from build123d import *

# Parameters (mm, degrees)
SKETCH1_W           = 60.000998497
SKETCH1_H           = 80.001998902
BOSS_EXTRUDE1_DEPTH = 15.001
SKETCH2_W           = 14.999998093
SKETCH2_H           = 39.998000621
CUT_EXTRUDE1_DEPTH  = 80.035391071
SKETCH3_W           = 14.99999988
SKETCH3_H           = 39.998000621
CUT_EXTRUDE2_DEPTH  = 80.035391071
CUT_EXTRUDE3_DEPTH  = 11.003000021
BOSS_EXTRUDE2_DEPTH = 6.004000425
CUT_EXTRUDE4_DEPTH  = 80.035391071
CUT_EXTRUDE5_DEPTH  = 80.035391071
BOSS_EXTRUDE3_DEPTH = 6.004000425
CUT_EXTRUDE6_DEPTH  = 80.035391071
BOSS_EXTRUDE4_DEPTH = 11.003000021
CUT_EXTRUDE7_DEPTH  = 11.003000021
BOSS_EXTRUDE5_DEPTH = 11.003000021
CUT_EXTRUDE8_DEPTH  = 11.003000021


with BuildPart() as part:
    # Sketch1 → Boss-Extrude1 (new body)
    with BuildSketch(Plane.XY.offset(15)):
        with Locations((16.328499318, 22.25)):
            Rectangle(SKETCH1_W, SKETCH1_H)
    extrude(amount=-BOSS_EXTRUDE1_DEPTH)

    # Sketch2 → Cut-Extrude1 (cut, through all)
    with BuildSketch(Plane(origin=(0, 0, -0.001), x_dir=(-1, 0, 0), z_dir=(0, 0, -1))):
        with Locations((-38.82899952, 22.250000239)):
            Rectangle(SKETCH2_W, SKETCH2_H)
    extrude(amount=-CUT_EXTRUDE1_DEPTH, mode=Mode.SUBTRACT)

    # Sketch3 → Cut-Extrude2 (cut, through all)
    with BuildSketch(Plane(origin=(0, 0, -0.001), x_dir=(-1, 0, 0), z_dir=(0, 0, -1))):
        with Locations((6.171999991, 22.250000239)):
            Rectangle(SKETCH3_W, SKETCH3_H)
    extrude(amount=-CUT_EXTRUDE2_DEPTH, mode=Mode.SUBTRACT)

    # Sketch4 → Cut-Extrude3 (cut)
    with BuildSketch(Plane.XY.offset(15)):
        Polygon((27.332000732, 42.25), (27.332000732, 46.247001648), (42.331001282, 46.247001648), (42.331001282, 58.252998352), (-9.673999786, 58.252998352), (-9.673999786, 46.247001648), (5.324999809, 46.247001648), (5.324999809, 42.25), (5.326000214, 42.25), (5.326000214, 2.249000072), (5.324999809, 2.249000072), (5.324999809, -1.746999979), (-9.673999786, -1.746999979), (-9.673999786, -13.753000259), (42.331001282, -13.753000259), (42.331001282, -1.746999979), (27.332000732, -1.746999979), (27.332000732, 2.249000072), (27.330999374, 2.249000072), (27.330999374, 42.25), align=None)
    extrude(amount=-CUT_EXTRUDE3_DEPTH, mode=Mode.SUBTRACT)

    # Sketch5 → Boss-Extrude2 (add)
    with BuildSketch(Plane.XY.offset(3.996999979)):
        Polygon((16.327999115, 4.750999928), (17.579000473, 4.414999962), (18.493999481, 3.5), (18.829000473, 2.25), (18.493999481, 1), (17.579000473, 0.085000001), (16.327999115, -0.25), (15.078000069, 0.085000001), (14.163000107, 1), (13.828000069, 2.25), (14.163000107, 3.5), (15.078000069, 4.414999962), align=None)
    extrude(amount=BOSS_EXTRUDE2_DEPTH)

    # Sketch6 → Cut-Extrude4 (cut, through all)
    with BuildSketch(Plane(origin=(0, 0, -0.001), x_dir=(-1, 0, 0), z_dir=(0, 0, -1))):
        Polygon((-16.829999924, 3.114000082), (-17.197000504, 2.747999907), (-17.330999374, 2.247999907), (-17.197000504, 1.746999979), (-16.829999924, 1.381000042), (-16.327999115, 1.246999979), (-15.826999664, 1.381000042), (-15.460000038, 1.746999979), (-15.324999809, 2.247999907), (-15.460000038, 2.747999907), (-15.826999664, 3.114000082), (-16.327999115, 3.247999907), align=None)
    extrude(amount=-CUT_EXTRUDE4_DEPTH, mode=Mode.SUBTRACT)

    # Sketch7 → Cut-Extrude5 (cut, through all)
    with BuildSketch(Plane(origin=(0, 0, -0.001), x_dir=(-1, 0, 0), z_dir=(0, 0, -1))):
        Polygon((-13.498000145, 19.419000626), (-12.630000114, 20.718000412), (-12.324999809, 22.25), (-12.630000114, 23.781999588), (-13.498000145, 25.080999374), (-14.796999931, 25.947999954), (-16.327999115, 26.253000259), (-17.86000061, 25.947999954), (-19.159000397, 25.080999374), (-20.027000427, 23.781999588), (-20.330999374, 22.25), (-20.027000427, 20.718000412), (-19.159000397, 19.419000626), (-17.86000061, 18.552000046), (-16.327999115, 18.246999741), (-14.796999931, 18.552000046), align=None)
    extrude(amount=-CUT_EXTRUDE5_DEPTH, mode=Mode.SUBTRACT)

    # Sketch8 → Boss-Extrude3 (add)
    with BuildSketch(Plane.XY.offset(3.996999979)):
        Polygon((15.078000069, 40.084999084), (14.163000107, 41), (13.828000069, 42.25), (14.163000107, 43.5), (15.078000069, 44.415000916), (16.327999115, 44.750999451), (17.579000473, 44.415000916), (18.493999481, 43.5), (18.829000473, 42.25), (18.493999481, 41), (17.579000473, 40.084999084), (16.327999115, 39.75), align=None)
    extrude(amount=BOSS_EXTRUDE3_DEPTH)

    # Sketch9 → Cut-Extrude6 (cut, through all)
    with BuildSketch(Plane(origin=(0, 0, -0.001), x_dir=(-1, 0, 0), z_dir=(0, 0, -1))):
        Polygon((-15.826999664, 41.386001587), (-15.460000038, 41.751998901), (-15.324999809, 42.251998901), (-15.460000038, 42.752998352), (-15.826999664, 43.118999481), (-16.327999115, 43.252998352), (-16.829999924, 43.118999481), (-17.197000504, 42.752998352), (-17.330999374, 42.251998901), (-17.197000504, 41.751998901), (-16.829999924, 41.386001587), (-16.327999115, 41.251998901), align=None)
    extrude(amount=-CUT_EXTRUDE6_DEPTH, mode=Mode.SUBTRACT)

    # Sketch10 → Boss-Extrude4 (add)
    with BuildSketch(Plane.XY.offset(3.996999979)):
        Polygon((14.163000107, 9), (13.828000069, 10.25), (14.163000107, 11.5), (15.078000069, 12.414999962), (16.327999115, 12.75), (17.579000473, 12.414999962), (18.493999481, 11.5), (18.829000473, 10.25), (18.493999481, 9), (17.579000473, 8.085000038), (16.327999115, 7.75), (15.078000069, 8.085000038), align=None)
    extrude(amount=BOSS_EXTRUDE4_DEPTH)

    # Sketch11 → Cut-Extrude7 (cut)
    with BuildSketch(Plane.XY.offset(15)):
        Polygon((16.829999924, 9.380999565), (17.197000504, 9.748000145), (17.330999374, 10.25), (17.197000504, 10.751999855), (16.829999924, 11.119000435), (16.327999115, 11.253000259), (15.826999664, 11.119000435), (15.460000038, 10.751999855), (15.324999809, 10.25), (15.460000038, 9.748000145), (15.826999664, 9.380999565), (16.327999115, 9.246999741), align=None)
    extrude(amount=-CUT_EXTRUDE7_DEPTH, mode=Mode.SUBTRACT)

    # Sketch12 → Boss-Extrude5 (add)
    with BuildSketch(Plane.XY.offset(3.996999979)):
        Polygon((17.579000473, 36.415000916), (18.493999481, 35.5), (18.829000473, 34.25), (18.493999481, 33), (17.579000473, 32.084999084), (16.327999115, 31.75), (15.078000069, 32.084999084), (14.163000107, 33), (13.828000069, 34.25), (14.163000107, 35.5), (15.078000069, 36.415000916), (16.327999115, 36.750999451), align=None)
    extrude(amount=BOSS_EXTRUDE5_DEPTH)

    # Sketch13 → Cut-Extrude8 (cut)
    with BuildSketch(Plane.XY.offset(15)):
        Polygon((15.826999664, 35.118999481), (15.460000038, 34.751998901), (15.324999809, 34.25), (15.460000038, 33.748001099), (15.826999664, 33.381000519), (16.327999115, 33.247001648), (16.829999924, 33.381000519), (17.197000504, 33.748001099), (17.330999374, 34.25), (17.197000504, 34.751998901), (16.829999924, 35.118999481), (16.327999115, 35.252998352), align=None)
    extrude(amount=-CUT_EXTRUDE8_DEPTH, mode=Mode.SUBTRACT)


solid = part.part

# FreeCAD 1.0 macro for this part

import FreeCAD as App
import Part
import Sketcher
from FreeCAD import Vector
Q = App.Units.Quantity


def add_polygon(sketch, points):
    """Adds a closed chain of lines whose ends are joined by coincident constraints."""
    first, n = sketch.GeometryCount, len(points)
    for a, b in zip(points, points[1:] + points[:1]):
        sketch.addGeometry(Part.LineSegment(App.Vector(*a, 0), App.Vector(*b, 0)), False)
    for i in range(n):
        sketch.addConstraint(Sketcher.Constraint("Coincident", first + i, 2, first + (i + 1) % n, 1))

doc = App.newDocument("Part")
body = doc.addObject("PartDesign::Body", "Body")

# Sketch on XY plane
sketch1 = body.newObject("Sketcher::SketchObject", "Sketch")
sketch1.AttachmentSupport = (doc.getObject("XY_Plane"), [""])
sketch1.MapMode = "FlatFace"
sketch1.AttachmentOffset = App.Placement(Vector(0, 0, 15), App.Rotation())
add_polygon(sketch1, [(-13.672, 62.250999), (-13.672, -17.750999), (46.328999, -17.750999), (46.328999, 62.250999)])  # lines 0-3
sketch1.addConstraint(Sketcher.Constraint("Vertical", 0))
sketch1.addConstraint(Sketcher.Constraint("Horizontal", 1))
sketch1.addConstraint(Sketcher.Constraint("Vertical", 2))
sketch1.addConstraint(Sketcher.Constraint("Horizontal", 3))
sketch1.addConstraint(Sketcher.Constraint("DistanceX", 1, 1, 1, 2, Q("60.000998 mm")))
sketch1.addConstraint(Sketcher.Constraint("DistanceY", 0, 2, 0, 1, Q("80.001999 mm")))
sketch1.addConstraint(Sketcher.Constraint("DistanceX", 0, 2, -1, 1, Q("13.672 mm")))
sketch1.addConstraint(Sketcher.Constraint("DistanceY", 0, 2, -1, 1, Q("17.750999 mm")))
pad1 = body.newObject("PartDesign::Pad", "Pad")
pad1.Profile = sketch1
pad1.Length = 15.001
pad1.Reversed = True

# Sketch on XY plane
sketch2 = body.newObject("Sketcher::SketchObject", "Sketch001")
sketch2.AttachmentSupport = (doc.getObject("XY_Plane"), [""])
sketch2.MapMode = "FlatFace"
sketch2.AttachmentOffset = App.Placement(Vector(0, 0, -0.001), App.Rotation())
add_polygon(sketch2, [(46.328999, 42.249001), (46.328999, 2.251), (31.329, 2.251), (31.329, 42.249001)])  # lines 0-3
sketch2.addConstraint(Sketcher.Constraint("Vertical", 0))
sketch2.addConstraint(Sketcher.Constraint("Horizontal", 1))
sketch2.addConstraint(Sketcher.Constraint("Vertical", 2))
sketch2.addConstraint(Sketcher.Constraint("Horizontal", 3))
sketch2.addConstraint(Sketcher.Constraint("DistanceX", 1, 2, 1, 1, Q("14.999998 mm")))
sketch2.addConstraint(Sketcher.Constraint("DistanceY", 0, 2, 0, 1, Q("39.998001 mm")))
sketch2.addConstraint(Sketcher.Constraint("DistanceX", -1, 1, 0, 2, Q("46.328999 mm")))
sketch2.addConstraint(Sketcher.Constraint("DistanceY", -1, 1, 0, 2, Q("2.251 mm")))
pocket1 = body.newObject("PartDesign::Pocket", "Pocket")
pocket1.Profile = sketch2
pocket1.Type = "ThroughAll"
pocket1.Reversed = True

# Sketch on XY plane
sketch3 = body.newObject("Sketcher::SketchObject", "Sketch002")
sketch3.AttachmentSupport = (doc.getObject("XY_Plane"), [""])
sketch3.MapMode = "FlatFace"
sketch3.AttachmentOffset = App.Placement(Vector(0, 0, -0.001), App.Rotation())
add_polygon(sketch3, [(1.328, 42.249001), (1.328, 2.251), (-13.672, 2.251), (-13.672, 42.249001)])  # lines 0-3
sketch3.addConstraint(Sketcher.Constraint("Vertical", 0))
sketch3.addConstraint(Sketcher.Constraint("Horizontal", 1))
sketch3.addConstraint(Sketcher.Constraint("Vertical", 2))
sketch3.addConstraint(Sketcher.Constraint("Horizontal", 3))
sketch3.addConstraint(Sketcher.Constraint("DistanceX", 1, 2, 1, 1, Q("15 mm")))
sketch3.addConstraint(Sketcher.Constraint("DistanceY", 0, 2, 0, 1, Q("39.998001 mm")))
sketch3.addConstraint(Sketcher.Constraint("DistanceX", -1, 1, 0, 2, Q("1.328 mm")))
sketch3.addConstraint(Sketcher.Constraint("DistanceY", -1, 1, 0, 2, Q("2.251 mm")))
pocket2 = body.newObject("PartDesign::Pocket", "Pocket001")
pocket2.Profile = sketch3
pocket2.Type = "ThroughAll"
pocket2.Reversed = True

# Sketch on XY plane
sketch4 = body.newObject("Sketcher::SketchObject", "Sketch003")
sketch4.AttachmentSupport = (doc.getObject("XY_Plane"), [""])
sketch4.MapMode = "FlatFace"
sketch4.AttachmentOffset = App.Placement(Vector(0, 0, 15), App.Rotation())
add_polygon(sketch4, [(27.332001, 42.25), (27.332001, 46.247002), (42.331001, 46.247002), (42.331001, 58.252998), (-9.674, 58.252998), (-9.674, 46.247002), (5.325, 46.247002), (5.325, 42.25), (5.326, 42.25), (5.326, 2.249), (5.325, 2.249), (5.325, -1.747), (-9.674, -1.747), (-9.674, -13.753), (42.331001, -13.753), (42.331001, -1.747), (27.332001, -1.747), (27.332001, 2.249), (27.330999, 2.249), (27.330999, 42.25)])  # lines 0-19
sketch4.addConstraint(Sketcher.Constraint("Vertical", 0))
sketch4.addConstraint(Sketcher.Constraint("Horizontal", 1))
sketch4.addConstraint(Sketcher.Constraint("Vertical", 2))
sketch4.addConstraint(Sketcher.Constraint("Horizontal", 3))
sketch4.addConstraint(Sketcher.Constraint("Vertical", 4))
sketch4.addConstraint(Sketcher.Constraint("Horizontal", 5))
sketch4.addConstraint(Sketcher.Constraint("Vertical", 6))
sketch4.addConstraint(Sketcher.Constraint("Horizontal", 7))
sketch4.addConstraint(Sketcher.Constraint("Vertical", 8))
sketch4.addConstraint(Sketcher.Constraint("Horizontal", 9))
sketch4.addConstraint(Sketcher.Constraint("Vertical", 10))
sketch4.addConstraint(Sketcher.Constraint("Horizontal", 11))
sketch4.addConstraint(Sketcher.Constraint("Vertical", 12))
sketch4.addConstraint(Sketcher.Constraint("Horizontal", 13))
sketch4.addConstraint(Sketcher.Constraint("Vertical", 14))
sketch4.addConstraint(Sketcher.Constraint("Horizontal", 15))
sketch4.addConstraint(Sketcher.Constraint("Vertical", 16))
sketch4.addConstraint(Sketcher.Constraint("Horizontal", 17))
sketch4.addConstraint(Sketcher.Constraint("Vertical", 18))
sketch4.addConstraint(Sketcher.Constraint("Horizontal", 19))
sketch4.addConstraint(Sketcher.Constraint("Horizontal", 1, 2, 4, 2))
sketch4.addConstraint(Sketcher.Constraint("Horizontal", 11, 2, 14, 2))
sketch4.addConstraint(Sketcher.Constraint("Horizontal", 9, 2, 16, 2))
sketch4.addConstraint(Sketcher.Constraint("Horizontal", 7, 2, 18, 2))
sketch4.addConstraint(Sketcher.Constraint("Vertical", 6, 2, 9, 2))
sketch4.addConstraint(Sketcher.Constraint("Vertical", 4, 2, 11, 2))
sketch4.addConstraint(Sketcher.Constraint("Vertical", 2, 2, 13, 2))
sketch4.addConstraint(Sketcher.Constraint("Vertical", 0, 2, 15, 2))
sketch4.addConstraint(Sketcher.Constraint("Equal", 1, 5))
sketch4.addConstraint(Sketcher.Constraint("Equal", 9, 17))
sketch4.addConstraint(Sketcher.Constraint("DistanceX", 4, 2, 7, 2, Q("15 mm")))
sketch4.addConstraint(Sketcher.Constraint("DistanceX", 1, 1, 1, 2, Q("14.999001 mm")))
sketch4.addConstraint(Sketcher.Constraint("DistanceX", 3, 2, 3, 1, Q("52.005001 mm")))
sketch4.addConstraint(Sketcher.Constraint("DistanceY", 0, 1, 0, 2, Q("3.997002 mm")))
sketch4.addConstraint(Sketcher.Constraint("DistanceY", 8, 2, 8, 1, Q("40.001 mm")))
sketch4.addConstraint(Sketcher.Constraint("DistanceY", 10, 2, 10, 1, Q("3.996 mm")))
sketch4.addConstraint(Sketcher.Constraint("DistanceY", 12, 2, 12, 1, Q("12.006 mm")))
sketch4.addConstraint(Sketcher.Constraint("DistanceY", -1, 1, 6, 2, Q("42.25 mm")))
sketch4.addConstraint(Sketcher.Constraint("DistanceX", -1, 1, 0, 2, Q("27.332001 mm")))
sketch4.addConstraint(Sketcher.Constraint("DistanceY", -1, 1, 2, 2, Q("58.252998 mm")))
pocket3 = body.newObject("PartDesign::Pocket", "Pocket002")
pocket3.Profile = sketch4
pocket3.Length = 11.003

# Sketch on XY plane
sketch5 = body.newObject("Sketcher::SketchObject", "Sketch004")
sketch5.AttachmentSupport = (doc.getObject("XY_Plane"), [""])
sketch5.MapMode = "FlatFace"
sketch5.AttachmentOffset = App.Placement(Vector(0, 0, 3.997), App.Rotation())
add_polygon(sketch5, [(17.579, 4.415), (16.327999, 4.751), (15.078, 4.415), (14.163, 3.5), (13.828, 2.25), (14.163, 1), (15.078, 0.085), (16.327999, -0.25), (17.579, 0.085), (18.493999, 1), (18.829, 2.25), (18.493999, 3.5)])  # lines 0-11
sketch5.addConstraint(Sketcher.Constraint("Perpendicular", 2, 5))
sketch5.addConstraint(Sketcher.Constraint("Perpendicular", 3, 6))
sketch5.addConstraint(Sketcher.Constraint("Perpendicular", 5, 8))
sketch5.addConstraint(Sketcher.Constraint("Perpendicular", 6, 9))
sketch5.addConstraint(Sketcher.Constraint("Parallel", 4, 10))
sketch5.addConstraint(Sketcher.Constraint("Perpendicular", 8, 11))
sketch5.addConstraint(Sketcher.Constraint("Horizontal", 5, 2, 7, 2))
sketch5.addConstraint(Sketcher.Constraint("Horizontal", 4, 2, 8, 2))
sketch5.addConstraint(Sketcher.Constraint("Horizontal", 3, 2, 9, 2))
sketch5.addConstraint(Sketcher.Constraint("Horizontal", 2, 2, 10, 2))
sketch5.addConstraint(Sketcher.Constraint("Horizontal", 1, 2, 11, 2))
sketch5.addConstraint(Sketcher.Constraint("Vertical", 2, 2, 4, 2))
sketch5.addConstraint(Sketcher.Constraint("Vertical", 1, 2, 5, 2))
sketch5.addConstraint(Sketcher.Constraint("Vertical", 0, 2, 6, 2))
sketch5.addConstraint(Sketcher.Constraint("Vertical", 8, 2, 10, 2))
sketch5.addConstraint(Sketcher.Constraint("Vertical", 7, 2, 11, 2))
sketch5.addConstraint(Sketcher.Constraint("Equal", 4, 6))
sketch5.addConstraint(Sketcher.Constraint("DistanceY", -1, 1, 4, 2, Q("1 mm")))
sketch5.addConstraint(Sketcher.Constraint("DistanceY", -1, 1, 2, 2, Q("3.5 mm")))
sketch5.addConstraint(Sketcher.Constraint("DistanceX", 3, 2, 0, 2, Q("2.499999 mm")))
sketch5.addConstraint(Sketcher.Constraint("DistanceY", 5, 2, 1, 2, Q("4.33 mm")))
sketch5.addConstraint(Sketcher.Constraint("DistanceX", -1, 1, 0, 2, Q("16.327999 mm")))
sketch5.addConstraint(Sketcher.Constraint("DistanceY", -1, 1, 0, 2, Q("4.751 mm")))
sketch5.addConstraint(Sketcher.Constraint("DistanceX", -1, 1, 7, 2, Q("17.579 mm")))
pad2 = body.newObject("PartDesign::Pad", "Pad001")
pad2.Profile = sketch5
pad2.Length = 6.004

# Sketch on XY plane
sketch6 = body.newObject("Sketcher::SketchObject", "Sketch005")
sketch6.AttachmentSupport = (doc.getObject("XY_Plane"), [""])
sketch6.MapMode = "FlatFace"
sketch6.AttachmentOffset = App.Placement(Vector(0, 0, -0.001), App.Rotation())
add_polygon(sketch6, [(16.83, 3.114), (17.197001, 2.748), (17.330999, 2.248), (17.197001, 1.747), (16.83, 1.381), (16.327999, 1.247), (15.827, 1.381), (15.46, 1.747), (15.325, 2.248), (15.46, 2.748), (15.827, 3.114), (16.327999, 3.248)])  # lines 0-11
sketch6.addConstraint(Sketcher.Constraint("Parallel", 0, 6))
sketch6.addConstraint(Sketcher.Constraint("Parallel", 3, 9))
sketch6.addConstraint(Sketcher.Constraint("Horizontal", 3, 2, 5, 2))
sketch6.addConstraint(Sketcher.Constraint("Horizontal", 2, 2, 6, 2))
sketch6.addConstraint(Sketcher.Constraint("Horizontal", 1, 2, 7, 2))
sketch6.addConstraint(Sketcher.Constraint("Horizontal", 0, 2, 8, 2))
sketch6.addConstraint(Sketcher.Constraint("Horizontal", 9, 2, 11, 2))
sketch6.addConstraint(Sketcher.Constraint("Vertical", 0, 2, 2, 2))
sketch6.addConstraint(Sketcher.Constraint("Vertical", 6, 2, 8, 2))
sketch6.addConstraint(Sketcher.Constraint("Vertical", 5, 2, 9, 2))
sketch6.addConstraint(Sketcher.Constraint("Vertical", 4, 2, 10, 2))
sketch6.addConstraint(Sketcher.Constraint("Vertical", 3, 2, 11, 2))
sketch6.addConstraint(Sketcher.Constraint("Equal", 2, 5))
sketch6.addConstraint(Sketcher.Constraint("Equal", 5, 10))
sketch6.addConstraint(Sketcher.Constraint("DistanceY", 7, 2, 10, 2, Q("1 mm")))
sketch6.addConstraint(Sketcher.Constraint("DistanceY", 1, 2, 0, 2, Q("0.5 mm")))
sketch6.addConstraint(Sketcher.Constraint("DistanceX", -1, 1, 3, 2, Q("16.83 mm")))
sketch6.addConstraint(Sketcher.Constraint("DistanceX", -1, 1, 6, 2, Q("15.46 mm")))
sketch6.addConstraint(Sketcher.Constraint("DistanceX", -1, 1, 0, 2, Q("17.197001 mm")))
sketch6.addConstraint(Sketcher.Constraint("DistanceY", -1, 1, 0, 2, Q("2.748 mm")))
sketch6.addConstraint(Sketcher.Constraint("DistanceX", -1, 1, 1, 2, Q("17.330999 mm")))
sketch6.addConstraint(Sketcher.Constraint("DistanceY", -1, 1, 2, 2, Q("1.747 mm")))
sketch6.addConstraint(Sketcher.Constraint("DistanceY", -1, 1, 3, 2, Q("1.381 mm")))
sketch6.addConstraint(Sketcher.Constraint("DistanceX", -1, 1, 7, 2, Q("15.325 mm")))
pocket4 = body.newObject("PartDesign::Pocket", "Pocket003")
pocket4.Profile = sketch6
pocket4.Type = "ThroughAll"
pocket4.Reversed = True

# Sketch on XY plane
sketch7 = body.newObject("Sketcher::SketchObject", "Sketch006")
sketch7.AttachmentSupport = (doc.getObject("XY_Plane"), [""])
sketch7.MapMode = "FlatFace"
sketch7.AttachmentOffset = App.Placement(Vector(0, 0, -0.001), App.Rotation())
add_polygon(sketch7, [(13.498, 19.419001), (12.63, 20.718), (12.325, 22.25), (12.63, 23.782), (13.498, 25.080999), (14.797, 25.948), (16.327999, 26.253), (17.860001, 25.948), (19.159, 25.080999), (20.027, 23.782), (20.330999, 22.25), (20.027, 20.718), (19.159, 19.419001), (17.860001, 18.552), (16.327999, 18.247), (14.797, 18.552)])  # lines 0-15
sketch7.addConstraint(Sketcher.Constraint("Perpendicular", 2, 6))
sketch7.addConstraint(Sketcher.Constraint("Parallel", 0, 8))
sketch7.addConstraint(Sketcher.Constraint("Parallel", 3, 11))
sketch7.addConstraint(Sketcher.Constraint("Parallel", 4, 12))
sketch7.addConstraint(Sketcher.Constraint("Perpendicular", 1, 13))
sketch7.addConstraint(Sketcher.Constraint("Parallel", 7, 15))
sketch7.addConstraint(Sketcher.Constraint("Horizontal", 4, 2, 6, 2))
sketch7.addConstraint(Sketcher.Constraint("Horizontal", 3, 2, 7, 2))
sketch7.addConstraint(Sketcher.Constraint("Horizontal", 2, 2, 8, 2))
sketch7.addConstraint(Sketcher.Constraint("Horizontal", 1, 2, 9, 2))
sketch7.addConstraint(Sketcher.Constraint("Horizontal", 0, 2, 10, 2))
sketch7.addConstraint(Sketcher.Constraint("Horizontal", 12, 2, 14, 2))
sketch7.addConstraint(Sketcher.Constraint("Horizontal", 11, 2, 15, 2))
sketch7.addConstraint(Sketcher.Constraint("Vertical", 0, 2, 2, 2))
sketch7.addConstraint(Sketcher.Constraint("Vertical", 8, 2, 10, 2))
sketch7.addConstraint(Sketcher.Constraint("Vertical", 7, 2, 11, 2))
sketch7.addConstraint(Sketcher.Constraint("Vertical", 6, 2, 12, 2))
sketch7.addConstraint(Sketcher.Constraint("Vertical", 5, 2, 13, 2))
sketch7.addConstraint(Sketcher.Constraint("Vertical", 4, 2, 14, 2))
sketch7.addConstraint(Sketcher.Constraint("Vertical", 3, 2, 15, 2))
sketch7.addConstraint(Sketcher.Constraint("Equal", 1, 2))
sketch7.addConstraint(Sketcher.Constraint("Equal", 2, 6))
sketch7.addConstraint(Sketcher.Constraint("DistanceX", -1, 1, 0, 2, Q("12.63 mm")))
sketch7.addConstraint(Sketcher.Constraint("DistanceY", -1, 1, 1, 2, Q("22.25 mm")))
sketch7.addConstraint(Sketcher.Constraint("DistanceX", -1, 1, 6, 2, Q("17.860001 mm")))
sketch7.addConstraint(Sketcher.Constraint("DistanceY", 0, 2, 4, 2, Q("5.23 mm")))
sketch7.addConstraint(Sketcher.Constraint("DistanceX", 3, 2, 5, 2, Q("2.829999 mm")))
sketch7.addConstraint(Sketcher.Constraint("DistanceY", -1, 1, 0, 2, Q("20.718 mm")))
sketch7.addConstraint(Sketcher.Constraint("DistanceX", -1, 1, 1, 2, Q("12.325 mm")))
sketch7.addConstraint(Sketcher.Constraint("DistanceY", -1, 1, 3, 2, Q("25.080999 mm")))
sketch7.addConstraint(Sketcher.Constraint("DistanceX", -1, 1, 4, 2, Q("14.797 mm")))
sketch7.addConstraint(Sketcher.Constraint("DistanceX", -1, 1, 9, 2, Q("20.330999 mm")))
pocket5 = body.newObject("PartDesign::Pocket", "Pocket004")
pocket5.Profile = sketch7
pocket5.Type = "ThroughAll"
pocket5.Reversed = True

# Sketch on XY plane
sketch8 = body.newObject("Sketcher::SketchObject", "Sketch007")
sketch8.AttachmentSupport = (doc.getObject("XY_Plane"), [""])
sketch8.MapMode = "FlatFace"
sketch8.AttachmentOffset = App.Placement(Vector(0, 0, 3.997), App.Rotation())
add_polygon(sketch8, [(14.163, 41), (15.078, 40.084999), (16.327999, 39.75), (17.579, 40.084999), (18.493999, 41), (18.829, 42.25), (18.493999, 43.5), (17.579, 44.415001), (16.327999, 44.750999), (15.078, 44.415001), (14.163, 43.5), (13.828, 42.25)])  # lines 0-11
sketch8.addConstraint(Sketcher.Constraint("Perpendicular", 0, 3))
sketch8.addConstraint(Sketcher.Constraint("Perpendicular", 1, 4))
sketch8.addConstraint(Sketcher.Constraint("Parallel", 0, 6))
sketch8.addConstraint(Sketcher.Constraint("Perpendicular", 6, 9))
sketch8.addConstraint(Sketcher.Constraint("Parallel", 4, 10))
sketch8.addConstraint(Sketcher.Constraint("Parallel", 5, 11))
sketch8.addConstraint(Sketcher.Constraint("Horizontal", 0, 2, 2, 2))
sketch8.addConstraint(Sketcher.Constraint("Horizontal", 6, 2, 8, 2))
sketch8.addConstraint(Sketcher.Constraint("Horizontal", 5, 2, 9, 2))
sketch8.addConstraint(Sketcher.Constraint("Horizontal", 4, 2, 10, 2))
sketch8.addConstraint(Sketcher.Constraint("Horizontal", 3, 2, 11, 2))
sketch8.addConstraint(Sketcher.Constraint("Vertical", 3, 2, 5, 2))
sketch8.addConstraint(Sketcher.Constraint("Vertical", 2, 2, 6, 2))
sketch8.addConstraint(Sketcher.Constraint("Vertical", 1, 2, 7, 2))
sketch8.addConstraint(Sketcher.Constraint("Vertical", 0, 2, 8, 2))
sketch8.addConstraint(Sketcher.Constraint("Vertical", 9, 2, 11, 2))
sketch8.addConstraint(Sketcher.Constraint("Equal", 1, 4))
sketch8.addConstraint(Sketcher.Constraint("DistanceY", -1, 1, 3, 2, Q("41 mm")))
sketch8.addConstraint(Sketcher.Constraint("DistanceY", -1, 1, 5, 2, Q("43.5 mm")))
sketch8.addConstraint(Sketcher.Constraint("DistanceY", 1, 2, 4, 2, Q("2.5 mm")))
sketch8.addConstraint(Sketcher.Constraint("DistanceY", 2, 2, 6, 2, Q("4.330002 mm")))
sketch8.addConstraint(Sketcher.Constraint("DistanceX", -1, 1, 0, 2, Q("15.078 mm")))
sketch8.addConstraint(Sketcher.Constraint("DistanceX", -1, 1, 2, 2, Q("17.579 mm")))
sketch8.addConstraint(Sketcher.Constraint("DistanceY", -1, 1, 7, 2, Q("44.750999 mm")))
pad3 = body.newObject("PartDesign::Pad", "Pad002")
pad3.Profile = sketch8
pad3.Length = 6.004

# Sketch on XY plane
sketch9 = body.newObject("Sketcher::SketchObject", "Sketch008")
sketch9.AttachmentSupport = (doc.getObject("XY_Plane"), [""])
sketch9.MapMode = "FlatFace"
sketch9.AttachmentOffset = App.Placement(Vector(0, 0, -0.001), App.Rotation())
add_polygon(sketch9, [(15.827, 41.386002), (15.46, 41.751999), (15.325, 42.251999), (15.46, 42.752998), (15.827, 43.118999), (16.327999, 43.252998), (16.83, 43.118999), (17.197001, 42.752998), (17.330999, 42.251999), (17.197001, 41.751999), (16.83, 41.386002), (16.327999, 41.251999)])  # lines 0-11
sketch9.addConstraint(Sketcher.Constraint("Perpendicular", 4, 7))
sketch9.addConstraint(Sketcher.Constraint("Horizontal", 3, 2, 5, 2))
sketch9.addConstraint(Sketcher.Constraint("Horizontal", 2, 2, 6, 2))
sketch9.addConstraint(Sketcher.Constraint("Horizontal", 1, 2, 7, 2))
sketch9.addConstraint(Sketcher.Constraint("Horizontal", 0, 2, 8, 2))
sketch9.addConstraint(Sketcher.Constraint("Horizontal", 9, 2, 11, 2))
sketch9.addConstraint(Sketcher.Constraint("Vertical", 0, 2, 2, 2))
sketch9.addConstraint(Sketcher.Constraint("Vertical", 6, 2, 8, 2))
sketch9.addConstraint(Sketcher.Constraint("Vertical", 5, 2, 9, 2))
sketch9.addConstraint(Sketcher.Constraint("Vertical", 4, 2, 10, 2))
sketch9.addConstraint(Sketcher.Constraint("Vertical", 3, 2, 11, 2))
sketch9.addConstraint(Sketcher.Constraint("Equal", 3, 6))
sketch9.addConstraint(Sketcher.Constraint("Equal", 4, 7))
sketch9.addConstraint(Sketcher.Constraint("Equal", 5, 10))
sketch9.addConstraint(Sketcher.Constraint("DistanceY", 10, 2, 1, 2, Q("1 mm")))
sketch9.addConstraint(Sketcher.Constraint("DistanceY", 0, 2, 1, 2, Q("0.5 mm")))
sketch9.addConstraint(Sketcher.Constraint("DistanceY", 2, 2, 4, 2, Q("0.5 mm")))
sketch9.addConstraint(Sketcher.Constraint("DistanceX", -1, 1, 0, 2, Q("15.46 mm")))
sketch9.addConstraint(Sketcher.Constraint("DistanceX", -1, 1, 5, 2, Q("16.83 mm")))
sketch9.addConstraint(Sketcher.Constraint("DistanceY", -1, 1, 0, 2, Q("41.751999 mm")))
sketch9.addConstraint(Sketcher.Constraint("DistanceX", -1, 1, 1, 2, Q("15.325 mm")))
sketch9.addConstraint(Sketcher.Constraint("DistanceY", -1, 1, 2, 2, Q("42.752998 mm")))
sketch9.addConstraint(Sketcher.Constraint("DistanceX", -1, 1, 3, 2, Q("15.827 mm")))
sketch9.addConstraint(Sketcher.Constraint("DistanceY", -1, 1, 3, 2, Q("43.118999 mm")))
pocket6 = body.newObject("PartDesign::Pocket", "Pocket005")
pocket6.Profile = sketch9
pocket6.Type = "ThroughAll"
pocket6.Reversed = True

# Sketch on XY plane
sketch10 = body.newObject("Sketcher::SketchObject", "Sketch009")
sketch10.AttachmentSupport = (doc.getObject("XY_Plane"), [""])
sketch10.MapMode = "FlatFace"
sketch10.AttachmentOffset = App.Placement(Vector(0, 0, 3.997), App.Rotation())
add_polygon(sketch10, [(13.828, 10.25), (14.163, 9), (15.078, 8.085), (16.327999, 7.75), (17.579, 8.085), (18.493999, 9), (18.829, 10.25), (18.493999, 11.5), (17.579, 12.415), (16.327999, 12.75), (15.078, 12.415), (14.163, 11.5)])  # lines 0-11
sketch10.addConstraint(Sketcher.Constraint("Perpendicular", 1, 4))
sketch10.addConstraint(Sketcher.Constraint("Perpendicular", 2, 5))
sketch10.addConstraint(Sketcher.Constraint("Parallel", 0, 6))
sketch10.addConstraint(Sketcher.Constraint("Perpendicular", 4, 7))
sketch10.addConstraint(Sketcher.Constraint("Perpendicular", 6, 9))
sketch10.addConstraint(Sketcher.Constraint("Perpendicular", 7, 10))
sketch10.addConstraint(Sketcher.Constraint("Parallel", 5, 11))
sketch10.addConstraint(Sketcher.Constraint("Horizontal", 1, 2, 3, 2))
sketch10.addConstraint(Sketcher.Constraint("Horizontal", 0, 2, 4, 2))
sketch10.addConstraint(Sketcher.Constraint("Horizontal", 7, 2, 9, 2))
sketch10.addConstraint(Sketcher.Constraint("Horizontal", 6, 2, 10, 2))
sketch10.addConstraint(Sketcher.Constraint("Horizontal", 5, 2, 11, 2))
sketch10.addConstraint(Sketcher.Constraint("Vertical", 4, 2, 6, 2))
sketch10.addConstraint(Sketcher.Constraint("Vertical", 3, 2, 7, 2))
sketch10.addConstraint(Sketcher.Constraint("Vertical", 2, 2, 8, 2))
sketch10.addConstraint(Sketcher.Constraint("Vertical", 1, 2, 9, 2))
sketch10.addConstraint(Sketcher.Constraint("Vertical", 0, 2, 10, 2))
sketch10.addConstraint(Sketcher.Constraint("Equal", 0, 2))
sketch10.addConstraint(Sketcher.Constraint("DistanceY", -1, 1, 0, 2, Q("9 mm")))
sketch10.addConstraint(Sketcher.Constraint("DistanceY", -1, 1, 6, 2, Q("11.5 mm")))
sketch10.addConstraint(Sketcher.Constraint("DistanceY", 2, 2, 5, 2, Q("2.5 mm")))
sketch10.addConstraint(Sketcher.Constraint("DistanceY", 3, 2, 7, 2, Q("4.33 mm")))
sketch10.addConstraint(Sketcher.Constraint("DistanceX", -1, 1, 0, 2, Q("14.163 mm")))
sketch10.addConstraint(Sketcher.Constraint("DistanceX", -1, 1, 3, 2, Q("17.579 mm")))
pad4 = body.newObject("PartDesign::Pad", "Pad003")
pad4.Profile = sketch10
pad4.Length = 11.003

# Sketch on XY plane
sketch11 = body.newObject("Sketcher::SketchObject", "Sketch010")
sketch11.AttachmentSupport = (doc.getObject("XY_Plane"), [""])
sketch11.MapMode = "FlatFace"
sketch11.AttachmentOffset = App.Placement(Vector(0, 0, 15), App.Rotation())
add_polygon(sketch11, [(16.83, 9.381), (17.197001, 9.748), (17.330999, 10.25), (17.197001, 10.752), (16.83, 11.119), (16.327999, 11.253), (15.827, 11.119), (15.46, 10.752), (15.325, 10.25), (15.46, 9.748), (15.827, 9.381), (16.327999, 9.247)])  # lines 0-11
sketch11.addConstraint(Sketcher.Constraint("Perpendicular", 0, 3))
sketch11.addConstraint(Sketcher.Constraint("Perpendicular", 1, 4))
sketch11.addConstraint(Sketcher.Constraint("Perpendicular", 3, 6))
sketch11.addConstraint(Sketcher.Constraint("Parallel", 3, 9))
sketch11.addConstraint(Sketcher.Constraint("Perpendicular", 2, 11))
sketch11.addConstraint(Sketcher.Constraint("Horizontal", 3, 2, 5, 2))
sketch11.addConstraint(Sketcher.Constraint("Horizontal", 2, 2, 6, 2))
sketch11.addConstraint(Sketcher.Constraint("Horizontal", 1, 2, 7, 2))
sketch11.addConstraint(Sketcher.Constraint("Horizontal", 0, 2, 8, 2))
sketch11.addConstraint(Sketcher.Constraint("Horizontal", 9, 2, 11, 2))
sketch11.addConstraint(Sketcher.Constraint("Vertical", 0, 2, 2, 2))
sketch11.addConstraint(Sketcher.Constraint("Vertical", 6, 2, 8, 2))
sketch11.addConstraint(Sketcher.Constraint("Vertical", 5, 2, 9, 2))
sketch11.addConstraint(Sketcher.Constraint("Vertical", 4, 2, 10, 2))
sketch11.addConstraint(Sketcher.Constraint("Vertical", 3, 2, 11, 2))
sketch11.addConstraint(Sketcher.Constraint("Equal", 1, 2))
sketch11.addConstraint(Sketcher.Constraint("Equal", 2, 4))
sketch11.addConstraint(Sketcher.Constraint("DistanceY", -1, 1, 1, 2, Q("10.25 mm")))
sketch11.addConstraint(Sketcher.Constraint("DistanceX", -1, 1, 3, 2, Q("16.83 mm")))
sketch11.addConstraint(Sketcher.Constraint("DistanceX", -1, 1, 6, 2, Q("15.46 mm")))
sketch11.addConstraint(Sketcher.Constraint("DistanceX", -1, 1, 0, 2, Q("17.197001 mm")))
sketch11.addConstraint(Sketcher.Constraint("DistanceY", -1, 1, 0, 2, Q("9.748 mm")))
sketch11.addConstraint(Sketcher.Constraint("DistanceX", -1, 1, 1, 2, Q("17.330999 mm")))
sketch11.addConstraint(Sketcher.Constraint("DistanceX", -1, 1, 7, 2, Q("15.325 mm")))
pocket7 = body.newObject("PartDesign::Pocket", "Pocket006")
pocket7.Profile = sketch11
pocket7.Length = 11.003

# Sketch on XY plane
sketch12 = body.newObject("Sketcher::SketchObject", "Sketch011")
sketch12.AttachmentSupport = (doc.getObject("XY_Plane"), [""])
sketch12.MapMode = "FlatFace"
sketch12.AttachmentOffset = App.Placement(Vector(0, 0, 3.997), App.Rotation())
add_polygon(sketch12, [(18.493999, 35.5), (17.579, 36.415001), (16.327999, 36.750999), (15.078, 36.415001), (14.163, 35.5), (13.828, 34.25), (14.163, 33), (15.078, 32.084999), (16.327999, 31.75), (17.579, 32.084999), (18.493999, 33), (18.829, 34.25)])  # lines 0-11
sketch12.addConstraint(Sketcher.Constraint("Perpendicular", 0, 3))
sketch12.addConstraint(Sketcher.Constraint("Perpendicular", 3, 6))
sketch12.addConstraint(Sketcher.Constraint("Perpendicular", 4, 7))
sketch12.addConstraint(Sketcher.Constraint("Perpendicular", 6, 9))
sketch12.addConstraint(Sketcher.Constraint("Perpendicular", 7, 10))
sketch12.addConstraint(Sketcher.Constraint("Parallel", 5, 11))
sketch12.addConstraint(Sketcher.Constraint("Horizontal", 0, 2, 2, 2))
sketch12.addConstraint(Sketcher.Constraint("Horizontal", 6, 2, 8, 2))
sketch12.addConstraint(Sketcher.Constraint("Horizontal", 5, 2, 9, 2))
sketch12.addConstraint(Sketcher.Constraint("Horizontal", 4, 2, 10, 2))
sketch12.addConstraint(Sketcher.Constraint("Horizontal", 3, 2, 11, 2))
sketch12.addConstraint(Sketcher.Constraint("Vertical", 3, 2, 5, 2))
sketch12.addConstraint(Sketcher.Constraint("Vertical", 2, 2, 6, 2))
sketch12.addConstraint(Sketcher.Constraint("Vertical", 1, 2, 7, 2))
sketch12.addConstraint(Sketcher.Constraint("Vertical", 0, 2, 8, 2))
sketch12.addConstraint(Sketcher.Constraint("Vertical", 9, 2, 11, 2))
sketch12.addConstraint(Sketcher.Constraint("Equal", 5, 7))
sketch12.addConstraint(Sketcher.Constraint("DistanceY", -1, 1, 5, 2, Q("33 mm")))
sketch12.addConstraint(Sketcher.Constraint("DistanceY", -1, 1, 3, 2, Q("35.5 mm")))
sketch12.addConstraint(Sketcher.Constraint("DistanceX", 4, 2, 1, 2, Q("2.499999 mm")))
sketch12.addConstraint(Sketcher.Constraint("DistanceY", 6, 2, 2, 2, Q("4.330002 mm")))
sketch12.addConstraint(Sketcher.Constraint("DistanceX", -1, 1, 0, 2, Q("17.579 mm")))
sketch12.addConstraint(Sketcher.Constraint("DistanceX", -1, 1, 1, 2, Q("16.327999 mm")))
sketch12.addConstraint(Sketcher.Constraint("DistanceY", -1, 1, 1, 2, Q("36.750999 mm")))
pad5 = body.newObject("PartDesign::Pad", "Pad004")
pad5.Profile = sketch12
pad5.Length = 11.003

# Sketch on XY plane
sketch13 = body.newObject("Sketcher::SketchObject", "Sketch012")
sketch13.AttachmentSupport = (doc.getObject("XY_Plane"), [""])
sketch13.MapMode = "FlatFace"
sketch13.AttachmentOffset = App.Placement(Vector(0, 0, 15), App.Rotation())
add_polygon(sketch13, [(15.827, 35.118999), (15.46, 34.751999), (15.325, 34.25), (15.46, 33.748001), (15.827, 33.381001), (16.327999, 33.247002), (16.83, 33.381001), (17.197001, 33.748001), (17.330999, 34.25), (17.197001, 34.751999), (16.83, 35.118999), (16.327999, 35.252998)])  # lines 0-11
sketch13.addConstraint(Sketcher.Constraint("Perpendicular", 3, 6))
sketch13.addConstraint(Sketcher.Constraint("Perpendicular", 5, 8))
sketch13.addConstraint(Sketcher.Constraint("Perpendicular", 6, 9))
sketch13.addConstraint(Sketcher.Constraint("Perpendicular", 7, 10))
sketch13.addConstraint(Sketcher.Constraint("Horizontal", 3, 2, 5, 2))
sketch13.addConstraint(Sketcher.Constraint("Horizontal", 2, 2, 6, 2))
sketch13.addConstraint(Sketcher.Constraint("Horizontal", 1, 2, 7, 2))
sketch13.addConstraint(Sketcher.Constraint("Horizontal", 0, 2, 8, 2))
sketch13.addConstraint(Sketcher.Constraint("Horizontal", 9, 2, 11, 2))
sketch13.addConstraint(Sketcher.Constraint("Vertical", 0, 2, 2, 2))
sketch13.addConstraint(Sketcher.Constraint("Vertical", 6, 2, 8, 2))
sketch13.addConstraint(Sketcher.Constraint("Vertical", 5, 2, 9, 2))
sketch13.addConstraint(Sketcher.Constraint("Vertical", 4, 2, 10, 2))
sketch13.addConstraint(Sketcher.Constraint("Vertical", 3, 2, 11, 2))
sketch13.addConstraint(Sketcher.Constraint("Equal", 1, 2))
sketch13.addConstraint(Sketcher.Constraint("Equal", 0, 3))
sketch13.addConstraint(Sketcher.Constraint("Equal", 5, 7))
sketch13.addConstraint(Sketcher.Constraint("DistanceX", -1, 1, 0, 2, Q("15.46 mm")))
sketch13.addConstraint(Sketcher.Constraint("DistanceY", -1, 1, 1, 2, Q("34.25 mm")))
sketch13.addConstraint(Sketcher.Constraint("DistanceX", -1, 1, 5, 2, Q("16.83 mm")))
sketch13.addConstraint(Sketcher.Constraint("DistanceY", -1, 1, 0, 2, Q("34.751999 mm")))
sketch13.addConstraint(Sketcher.Constraint("DistanceX", -1, 1, 1, 2, Q("15.325 mm")))
sketch13.addConstraint(Sketcher.Constraint("DistanceX", -1, 1, 3, 2, Q("15.827 mm")))
sketch13.addConstraint(Sketcher.Constraint("DistanceY", -1, 1, 4, 2, Q("33.247002 mm")))
pocket8 = body.newObject("PartDesign::Pocket", "Pocket007")
pocket8.Profile = sketch13
pocket8.Length = 11.003

doc.recompute()
